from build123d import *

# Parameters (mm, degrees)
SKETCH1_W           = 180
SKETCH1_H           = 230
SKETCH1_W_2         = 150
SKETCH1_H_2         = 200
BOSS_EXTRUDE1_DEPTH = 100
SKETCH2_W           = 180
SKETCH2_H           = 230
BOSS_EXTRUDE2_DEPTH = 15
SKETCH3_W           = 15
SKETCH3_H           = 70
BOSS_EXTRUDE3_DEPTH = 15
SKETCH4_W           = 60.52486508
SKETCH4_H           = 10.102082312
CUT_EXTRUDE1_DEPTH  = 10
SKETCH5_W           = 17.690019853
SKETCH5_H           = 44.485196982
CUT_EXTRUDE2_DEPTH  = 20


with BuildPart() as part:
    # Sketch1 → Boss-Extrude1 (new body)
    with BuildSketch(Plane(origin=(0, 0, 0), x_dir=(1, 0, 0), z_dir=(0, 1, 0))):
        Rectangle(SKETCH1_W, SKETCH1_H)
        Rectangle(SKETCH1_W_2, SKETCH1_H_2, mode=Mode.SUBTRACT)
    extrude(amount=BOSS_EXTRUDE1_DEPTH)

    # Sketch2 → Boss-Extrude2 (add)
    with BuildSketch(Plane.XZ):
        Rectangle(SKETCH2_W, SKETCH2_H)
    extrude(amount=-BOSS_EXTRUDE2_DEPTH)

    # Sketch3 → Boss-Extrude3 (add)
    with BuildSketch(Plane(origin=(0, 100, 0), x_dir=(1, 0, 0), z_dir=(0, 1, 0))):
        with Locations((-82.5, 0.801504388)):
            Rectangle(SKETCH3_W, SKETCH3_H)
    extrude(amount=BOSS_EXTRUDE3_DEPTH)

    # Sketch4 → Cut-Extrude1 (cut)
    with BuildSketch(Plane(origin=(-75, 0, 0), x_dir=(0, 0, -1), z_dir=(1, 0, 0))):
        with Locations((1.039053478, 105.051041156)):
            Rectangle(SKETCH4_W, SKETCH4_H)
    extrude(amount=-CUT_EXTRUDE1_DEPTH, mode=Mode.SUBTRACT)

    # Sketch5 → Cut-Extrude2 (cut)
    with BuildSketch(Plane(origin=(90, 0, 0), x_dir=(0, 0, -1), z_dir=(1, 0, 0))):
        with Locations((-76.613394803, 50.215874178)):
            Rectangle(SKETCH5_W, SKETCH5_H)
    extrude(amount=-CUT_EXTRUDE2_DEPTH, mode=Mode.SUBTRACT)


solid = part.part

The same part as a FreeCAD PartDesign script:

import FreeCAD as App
import Part
import Sketcher
from FreeCAD import Vector


def add_polygon(sketch, points):
    """Adds a closed chain of lines whose ends are joined by coincident constraints."""
    first, n = sketch.GeometryCount, len(points)
    for a, b in zip(points, points[1:] + points[:1]):
        sketch.addGeometry(Part.LineSegment(App.Vector(*a, 0), App.Vector(*b, 0)), False)
    for i in range(n):
        sketch.addConstraint(Sketcher.Constraint("Coincident", first + i, 2, first + (i + 1) % n, 1))

doc = App.newDocument("Part")
body = doc.addObject("PartDesign::Body", "Body")

# Sketch on XZ plane
sketch1 = body.newObject("Sketcher::SketchObject", "Sketch")
sketch1.AttachmentSupport = (doc.getObject("XZ_Plane"), [""])
sketch1.MapMode = "FlatFace"
add_polygon(sketch1, [(-90, -115), (-90, 115), (90, 115), (90, -115)])  # lines 0-3
add_polygon(sketch1, [(75, 100), (-75, 100), (-75, -100), (75, -100)])  # lines 4-7
sketch1.addConstraint([
    Sketcher.Constraint("Vertical", 0),
    Sketcher.Constraint("Horizontal", 1),
    Sketcher.Constraint("Vertical", 2),
    Sketcher.Constraint("Horizontal", 3),
    Sketcher.Constraint("Horizontal", 4),
    Sketcher.Constraint("Vertical", 5),
    Sketcher.Constraint("Horizontal", 6),
    Sketcher.Constraint("Vertical", 7),
    Sketcher.Constraint("Symmetric", 0, 2, 2, 2, -1, 1),
    Sketcher.Constraint("Symmetric", 4, 2, 6, 2, -1, 1),
    Sketcher.Constraint("DistanceX", 1, 1, 1, 2, 180.0),
    Sketcher.Constraint("DistanceX", 4, 2, 4, 1, 150.0),
    Sketcher.Constraint("DistanceY", 0, 1, 0, 2, 230.0),
    Sketcher.Constraint("DistanceY", 5, 2, 5, 1, 200.0),
])
pad1 = body.newObject("PartDesign::Pad", "Pad")
pad1.Profile = sketch1
pad1.Length = 100
pad1.Reversed = True

# Sketch on XZ plane
sketch2 = body.newObject("Sketcher::SketchObject", "Sketch001")
sketch2.AttachmentSupport = (doc.getObject("XZ_Plane"), [""])
sketch2.MapMode = "FlatFace"
add_polygon(sketch2, [(-90, 115), (-90, -115), (90, -115), (90, 115)])  # lines 0-3
sketch2.addConstraint([
    Sketcher.Constraint("Vertical", 0),
    Sketcher.Constraint("Horizontal", 1),
    Sketcher.Constraint("Vertical", 2),
    Sketcher.Constraint("Horizontal", 3),
    Sketcher.Constraint("Symmetric", 0, 2, 2, 2, -1, 1),
    Sketcher.Constraint("DistanceX", 1, 1, 1, 2, 180.0),
    Sketcher.Constraint("DistanceY", 0, 2, 0, 1, 230.0),
])
pad2 = body.newObject("PartDesign::Pad", "Pad001")
pad2.Profile = sketch2
pad2.Length = 15
pad2.Reversed = True

# Sketch on XZ plane
sketch3 = body.newObject("Sketcher::SketchObject", "Sketch002")
sketch3.AttachmentSupport = (doc.getObject("XZ_Plane"), [""])
sketch3.MapMode = "FlatFace"
sketch3.AttachmentOffset = App.Placement(Vector(0, 0, -100), App.Rotation())
add_polygon(sketch3, [(-90, -35.801504), (-90, 34.198496), (-75, 34.198496), (-75, -35.801504)])  # lines 0-3
sketch3.addConstraint([
    Sketcher.Constraint("Vertical", 0),
    Sketcher.Constraint("Horizontal", 1),
    Sketcher.Constraint("Vertical", 2),
    Sketcher.Constraint("Horizontal", 3),
    Sketcher.Constraint("DistanceX", 1, 1, 1, 2, 15.0),
    Sketcher.Constraint("DistanceY", 0, 1, 0, 2, 70.0),
    Sketcher.Constraint("DistanceX", 0, 2, -1, 1, 90.0),
    Sketcher.Constraint("DistanceY", -1, 1, 0, 2, 34.198496),
])
pad3 = body.newObject("PartDesign::Pad", "Pad002")
pad3.Profile = sketch3
pad3.Length = 15
pad3.Reversed = True

# Sketch on YZ plane
sketch4 = body.newObject("Sketcher::SketchObject", "Sketch003")
sketch4.AttachmentSupport = (doc.getObject("YZ_Plane"), [""])
sketch4.MapMode = "FlatFace"
sketch4.AttachmentOffset = App.Placement(Vector(0, 0, -75), App.Rotation())
add_polygon(sketch4, [(110.102082, 29.223379), (100, 29.223379), (100, -31.301486), (110.102082, -31.301486)])  # lines 0-3
sketch4.addConstraint([
    Sketcher.Constraint("Horizontal", 0),
    Sketcher.Constraint("Vertical", 1),
    Sketcher.Constraint("Horizontal", 2),
    Sketcher.Constraint("Vertical", 3),
    Sketcher.Constraint("DistanceX", -1, 1, 0, 2, 100.0),
    Sketcher.Constraint("DistanceX", 0, 2, 0, 1, 10.102082),
    Sketcher.Constraint("DistanceY", 1, 2, 1, 1, 60.524865),
    Sketcher.Constraint("DistanceY", -1, 1, 0, 2, 29.223379),
])
pocket1 = body.newObject("PartDesign::Pocket", "Pocket")
pocket1.Profile = sketch4
pocket1.Length = 10

# Sketch on YZ plane
sketch5 = body.newObject("Sketcher::SketchObject", "Sketch004")
sketch5.AttachmentSupport = (doc.getObject("YZ_Plane"), [""])
sketch5.MapMode = "FlatFace"
sketch5.AttachmentOffset = App.Placement(Vector(0, 0, 90), App.Rotation())
add_polygon(sketch5, [(72.458473, 85.458405), (27.973276, 85.458405), (27.973276, 67.768385), (72.458473, 67.768385)])  # lines 0-3
sketch5.addConstraint([
    Sketcher.Constraint("Horizontal", 0),
    Sketcher.Constraint("Vertical", 1),
    Sketcher.Constraint("Horizontal", 2),
    Sketcher.Constraint("Vertical", 3),
    Sketcher.Constraint("DistanceY", 1, 2, 1, 1, 17.69002),
    Sketcher.Constraint("DistanceX", 0, 2, 0, 1, 44.485197),
    Sketcher.Constraint("DistanceX", -1, 1, 0, 2, 27.973276),
    Sketcher.Constraint("DistanceY", -1, 1, 0, 2, 85.458405),
])
pocket2 = body.newObject("PartDesign::Pocket", "Pocket001")
pocket2.Profile = sketch5
pocket2.Length = 20

doc.recompute()
